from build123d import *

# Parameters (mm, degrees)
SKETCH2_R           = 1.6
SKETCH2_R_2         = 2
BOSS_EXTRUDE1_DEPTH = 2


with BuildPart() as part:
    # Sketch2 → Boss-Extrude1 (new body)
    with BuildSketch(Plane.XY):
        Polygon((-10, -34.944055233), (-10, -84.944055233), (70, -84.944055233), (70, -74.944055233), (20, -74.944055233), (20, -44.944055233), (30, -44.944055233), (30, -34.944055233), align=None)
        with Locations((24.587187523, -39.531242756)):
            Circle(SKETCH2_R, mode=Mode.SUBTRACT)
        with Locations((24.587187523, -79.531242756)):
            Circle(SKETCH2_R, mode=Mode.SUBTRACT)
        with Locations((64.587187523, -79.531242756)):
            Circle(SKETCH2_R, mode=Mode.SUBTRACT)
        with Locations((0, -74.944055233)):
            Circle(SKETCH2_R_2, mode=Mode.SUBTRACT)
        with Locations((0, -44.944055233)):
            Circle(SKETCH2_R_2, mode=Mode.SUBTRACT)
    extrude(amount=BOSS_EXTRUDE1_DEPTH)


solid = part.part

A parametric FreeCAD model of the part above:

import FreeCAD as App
import Part
import Sketcher
from FreeCAD import Vector
Q = App.Units.Quantity

doc = App.newDocument("Part")
body = doc.addObject("PartDesign::Body", "Body")

# Sketch on XY plane
sketch1 = body.newObject("Sketcher::SketchObject", "Sketch")
sketch1.AttachmentSupport = (doc.getObject("XY_Plane"), [""])
sketch1.MapMode = "FlatFace"
sketch1.addGeometry(Part.LineSegment(Vector(-10, -34.9, 0), Vector(-10, -84.9, 0)), False)
sketch1.addGeometry(Part.LineSegment(Vector(-10, -84.9, 0), Vector(70, -84.9, 0)), False)
sketch1.addGeometry(Part.LineSegment(Vector(70, -84.9, 0), Vector(70, -74.9, 0)), False)
sketch1.addGeometry(Part.LineSegment(Vector(70, -74.9, 0), Vector(20, -74.9, 0)), False)
sketch1.addGeometry(Part.LineSegment(Vector(20, -74.9, 0), Vector(20, -44.9, 0)), False)
sketch1.addGeometry(Part.LineSegment(Vector(20, -44.9, 0), Vector(30, -44.9, 0)), False)
sketch1.addGeometry(Part.LineSegment(Vector(30, -44.9, 0), Vector(30, -34.9, 0)), False)
sketch1.addGeometry(Part.LineSegment(Vector(30, -34.9, 0), Vector(-10, -34.9, 0)), False)
sketch1.addGeometry(Part.Circle(Vector(0, -74.9, 0), Vector(0, 0, 1), 2), False)
sketch1.addGeometry(Part.Circle(Vector(24.6, -79.5, 0), Vector(0, 0, 1), 1.6), False)
sketch1.addGeometry(Part.Circle(Vector(64.6, -79.5, 0), Vector(0, 0, 1), 1.6), False)
sketch1.addGeometry(Part.Circle(Vector(0, -44.9, 0), Vector(0, 0, 1), 2), False)
sketch1.addGeometry(Part.Circle(Vector(24.6, -39.5, 0), Vector(0, 0, 1), 1.6), False)
sketch1.addConstraint(Sketcher.Constraint("Coincident", 0, 2, 1, 1))
sketch1.addConstraint(Sketcher.Constraint("Coincident", 1, 2, 2, 1))
sketch1.addConstraint(Sketcher.Constraint("Coincident", 2, 2, 3, 1))
sketch1.addConstraint(Sketcher.Constraint("Coincident", 3, 2, 4, 1))
sketch1.addConstraint(Sketcher.Constraint("Coincident", 4, 2, 5, 1))
sketch1.addConstraint(Sketcher.Constraint("Coincident", 5, 2, 6, 1))
sketch1.addConstraint(Sketcher.Constraint("Coincident", 6, 2, 7, 1))
sketch1.addConstraint(Sketcher.Constraint("Coincident", 7, 2, 0, 1))
sketch1.addConstraint(Sketcher.Constraint("Vertical", 0))
sketch1.addConstraint(Sketcher.Constraint("Horizontal", 1))
sketch1.addConstraint(Sketcher.Constraint("Vertical", 2))
sketch1.addConstraint(Sketcher.Constraint("Horizontal", 3))
sketch1.addConstraint(Sketcher.Constraint("Vertical", 4))
sketch1.addConstraint(Sketcher.Constraint("Horizontal", 5))
sketch1.addConstraint(Sketcher.Constraint("Vertical", 6))
sketch1.addConstraint(Sketcher.Constraint("Horizontal", 7))
sketch1.addConstraint(Sketcher.Constraint("Equal", 9, 10))
sketch1.addConstraint(Sketcher.Constraint("Equal", 8, 11))
sketch1.addConstraint(Sketcher.Constraint("Equal", 10, 12))
sketch1.addConstraint(Sketcher.Constraint("PointOnObject", 8, 3, -2))
sketch1.addConstraint(Sketcher.Constraint("PointOnObject", 11, 3, -2))
sketch1.addConstraint(Sketcher.Constraint("Horizontal", 9, 3, 10, 3))
sketch1.addConstraint(Sketcher.Constraint("Horizontal", 8, 3, 2, 2))
sketch1.addConstraint(Sketcher.Constraint("Horizontal", 11, 3, 4, 2))
sketch1.addConstraint(Sketcher.Constraint("Vertical", 9, 3, 12, 3))
sketch1.addConstraint(Sketcher.Constraint("Equal", 3, 0))
sketch1.addConstraint(Sketcher.Constraint("Equal", 5, 2))
sketch1.addConstraint(Sketcher.Constraint("Equal", 2, 6))
sketch1.addConstraint(Sketcher.Constraint("Diameter", 8, Q("4 mm")))
sketch1.addConstraint(Sketcher.Constraint("Diameter", 9, Q("3.2 mm")))
sketch1.addConstraint(Sketcher.Constraint("DistanceX", 1, 1, 1, 2, Q("80 mm")))
sketch1.addConstraint(Sketcher.Constraint("DistanceX", 3, 2, 3, 1, Q("50 mm")))
sketch1.addConstraint(Sketcher.Constraint("DistanceX", 5, 1, 5, 2, Q("10 mm")))
sketch1.addConstraint(Sketcher.Constraint("DistanceX", 0, 2, -1, 1, Q("10 mm")))
sketch1.addConstraint(Sketcher.Constraint("DistanceX", 9, 3, 10, 3, Q("40 mm")))
sketch1.addConstraint(Sketcher.Constraint("DistanceY", 9, 3, 12, 3, Q("40 mm")))
sketch1.addConstraint(Sketcher.Constraint("DistanceY", 8, 3, -1, 1, Q("74.944055 mm")))
sketch1.addConstraint(Sketcher.Constraint("DistanceX", -1, 1, 9, 3, Q("24.587188 mm")))
sketch1.addConstraint(Sketcher.Constraint("DistanceY", 9, 3, -1, 1, Q("79.531243 mm")))
pad1 = body.newObject("PartDesign::Pad", "Pad")
pad1.Profile = sketch1
pad1.Length = 2

doc.recompute()
